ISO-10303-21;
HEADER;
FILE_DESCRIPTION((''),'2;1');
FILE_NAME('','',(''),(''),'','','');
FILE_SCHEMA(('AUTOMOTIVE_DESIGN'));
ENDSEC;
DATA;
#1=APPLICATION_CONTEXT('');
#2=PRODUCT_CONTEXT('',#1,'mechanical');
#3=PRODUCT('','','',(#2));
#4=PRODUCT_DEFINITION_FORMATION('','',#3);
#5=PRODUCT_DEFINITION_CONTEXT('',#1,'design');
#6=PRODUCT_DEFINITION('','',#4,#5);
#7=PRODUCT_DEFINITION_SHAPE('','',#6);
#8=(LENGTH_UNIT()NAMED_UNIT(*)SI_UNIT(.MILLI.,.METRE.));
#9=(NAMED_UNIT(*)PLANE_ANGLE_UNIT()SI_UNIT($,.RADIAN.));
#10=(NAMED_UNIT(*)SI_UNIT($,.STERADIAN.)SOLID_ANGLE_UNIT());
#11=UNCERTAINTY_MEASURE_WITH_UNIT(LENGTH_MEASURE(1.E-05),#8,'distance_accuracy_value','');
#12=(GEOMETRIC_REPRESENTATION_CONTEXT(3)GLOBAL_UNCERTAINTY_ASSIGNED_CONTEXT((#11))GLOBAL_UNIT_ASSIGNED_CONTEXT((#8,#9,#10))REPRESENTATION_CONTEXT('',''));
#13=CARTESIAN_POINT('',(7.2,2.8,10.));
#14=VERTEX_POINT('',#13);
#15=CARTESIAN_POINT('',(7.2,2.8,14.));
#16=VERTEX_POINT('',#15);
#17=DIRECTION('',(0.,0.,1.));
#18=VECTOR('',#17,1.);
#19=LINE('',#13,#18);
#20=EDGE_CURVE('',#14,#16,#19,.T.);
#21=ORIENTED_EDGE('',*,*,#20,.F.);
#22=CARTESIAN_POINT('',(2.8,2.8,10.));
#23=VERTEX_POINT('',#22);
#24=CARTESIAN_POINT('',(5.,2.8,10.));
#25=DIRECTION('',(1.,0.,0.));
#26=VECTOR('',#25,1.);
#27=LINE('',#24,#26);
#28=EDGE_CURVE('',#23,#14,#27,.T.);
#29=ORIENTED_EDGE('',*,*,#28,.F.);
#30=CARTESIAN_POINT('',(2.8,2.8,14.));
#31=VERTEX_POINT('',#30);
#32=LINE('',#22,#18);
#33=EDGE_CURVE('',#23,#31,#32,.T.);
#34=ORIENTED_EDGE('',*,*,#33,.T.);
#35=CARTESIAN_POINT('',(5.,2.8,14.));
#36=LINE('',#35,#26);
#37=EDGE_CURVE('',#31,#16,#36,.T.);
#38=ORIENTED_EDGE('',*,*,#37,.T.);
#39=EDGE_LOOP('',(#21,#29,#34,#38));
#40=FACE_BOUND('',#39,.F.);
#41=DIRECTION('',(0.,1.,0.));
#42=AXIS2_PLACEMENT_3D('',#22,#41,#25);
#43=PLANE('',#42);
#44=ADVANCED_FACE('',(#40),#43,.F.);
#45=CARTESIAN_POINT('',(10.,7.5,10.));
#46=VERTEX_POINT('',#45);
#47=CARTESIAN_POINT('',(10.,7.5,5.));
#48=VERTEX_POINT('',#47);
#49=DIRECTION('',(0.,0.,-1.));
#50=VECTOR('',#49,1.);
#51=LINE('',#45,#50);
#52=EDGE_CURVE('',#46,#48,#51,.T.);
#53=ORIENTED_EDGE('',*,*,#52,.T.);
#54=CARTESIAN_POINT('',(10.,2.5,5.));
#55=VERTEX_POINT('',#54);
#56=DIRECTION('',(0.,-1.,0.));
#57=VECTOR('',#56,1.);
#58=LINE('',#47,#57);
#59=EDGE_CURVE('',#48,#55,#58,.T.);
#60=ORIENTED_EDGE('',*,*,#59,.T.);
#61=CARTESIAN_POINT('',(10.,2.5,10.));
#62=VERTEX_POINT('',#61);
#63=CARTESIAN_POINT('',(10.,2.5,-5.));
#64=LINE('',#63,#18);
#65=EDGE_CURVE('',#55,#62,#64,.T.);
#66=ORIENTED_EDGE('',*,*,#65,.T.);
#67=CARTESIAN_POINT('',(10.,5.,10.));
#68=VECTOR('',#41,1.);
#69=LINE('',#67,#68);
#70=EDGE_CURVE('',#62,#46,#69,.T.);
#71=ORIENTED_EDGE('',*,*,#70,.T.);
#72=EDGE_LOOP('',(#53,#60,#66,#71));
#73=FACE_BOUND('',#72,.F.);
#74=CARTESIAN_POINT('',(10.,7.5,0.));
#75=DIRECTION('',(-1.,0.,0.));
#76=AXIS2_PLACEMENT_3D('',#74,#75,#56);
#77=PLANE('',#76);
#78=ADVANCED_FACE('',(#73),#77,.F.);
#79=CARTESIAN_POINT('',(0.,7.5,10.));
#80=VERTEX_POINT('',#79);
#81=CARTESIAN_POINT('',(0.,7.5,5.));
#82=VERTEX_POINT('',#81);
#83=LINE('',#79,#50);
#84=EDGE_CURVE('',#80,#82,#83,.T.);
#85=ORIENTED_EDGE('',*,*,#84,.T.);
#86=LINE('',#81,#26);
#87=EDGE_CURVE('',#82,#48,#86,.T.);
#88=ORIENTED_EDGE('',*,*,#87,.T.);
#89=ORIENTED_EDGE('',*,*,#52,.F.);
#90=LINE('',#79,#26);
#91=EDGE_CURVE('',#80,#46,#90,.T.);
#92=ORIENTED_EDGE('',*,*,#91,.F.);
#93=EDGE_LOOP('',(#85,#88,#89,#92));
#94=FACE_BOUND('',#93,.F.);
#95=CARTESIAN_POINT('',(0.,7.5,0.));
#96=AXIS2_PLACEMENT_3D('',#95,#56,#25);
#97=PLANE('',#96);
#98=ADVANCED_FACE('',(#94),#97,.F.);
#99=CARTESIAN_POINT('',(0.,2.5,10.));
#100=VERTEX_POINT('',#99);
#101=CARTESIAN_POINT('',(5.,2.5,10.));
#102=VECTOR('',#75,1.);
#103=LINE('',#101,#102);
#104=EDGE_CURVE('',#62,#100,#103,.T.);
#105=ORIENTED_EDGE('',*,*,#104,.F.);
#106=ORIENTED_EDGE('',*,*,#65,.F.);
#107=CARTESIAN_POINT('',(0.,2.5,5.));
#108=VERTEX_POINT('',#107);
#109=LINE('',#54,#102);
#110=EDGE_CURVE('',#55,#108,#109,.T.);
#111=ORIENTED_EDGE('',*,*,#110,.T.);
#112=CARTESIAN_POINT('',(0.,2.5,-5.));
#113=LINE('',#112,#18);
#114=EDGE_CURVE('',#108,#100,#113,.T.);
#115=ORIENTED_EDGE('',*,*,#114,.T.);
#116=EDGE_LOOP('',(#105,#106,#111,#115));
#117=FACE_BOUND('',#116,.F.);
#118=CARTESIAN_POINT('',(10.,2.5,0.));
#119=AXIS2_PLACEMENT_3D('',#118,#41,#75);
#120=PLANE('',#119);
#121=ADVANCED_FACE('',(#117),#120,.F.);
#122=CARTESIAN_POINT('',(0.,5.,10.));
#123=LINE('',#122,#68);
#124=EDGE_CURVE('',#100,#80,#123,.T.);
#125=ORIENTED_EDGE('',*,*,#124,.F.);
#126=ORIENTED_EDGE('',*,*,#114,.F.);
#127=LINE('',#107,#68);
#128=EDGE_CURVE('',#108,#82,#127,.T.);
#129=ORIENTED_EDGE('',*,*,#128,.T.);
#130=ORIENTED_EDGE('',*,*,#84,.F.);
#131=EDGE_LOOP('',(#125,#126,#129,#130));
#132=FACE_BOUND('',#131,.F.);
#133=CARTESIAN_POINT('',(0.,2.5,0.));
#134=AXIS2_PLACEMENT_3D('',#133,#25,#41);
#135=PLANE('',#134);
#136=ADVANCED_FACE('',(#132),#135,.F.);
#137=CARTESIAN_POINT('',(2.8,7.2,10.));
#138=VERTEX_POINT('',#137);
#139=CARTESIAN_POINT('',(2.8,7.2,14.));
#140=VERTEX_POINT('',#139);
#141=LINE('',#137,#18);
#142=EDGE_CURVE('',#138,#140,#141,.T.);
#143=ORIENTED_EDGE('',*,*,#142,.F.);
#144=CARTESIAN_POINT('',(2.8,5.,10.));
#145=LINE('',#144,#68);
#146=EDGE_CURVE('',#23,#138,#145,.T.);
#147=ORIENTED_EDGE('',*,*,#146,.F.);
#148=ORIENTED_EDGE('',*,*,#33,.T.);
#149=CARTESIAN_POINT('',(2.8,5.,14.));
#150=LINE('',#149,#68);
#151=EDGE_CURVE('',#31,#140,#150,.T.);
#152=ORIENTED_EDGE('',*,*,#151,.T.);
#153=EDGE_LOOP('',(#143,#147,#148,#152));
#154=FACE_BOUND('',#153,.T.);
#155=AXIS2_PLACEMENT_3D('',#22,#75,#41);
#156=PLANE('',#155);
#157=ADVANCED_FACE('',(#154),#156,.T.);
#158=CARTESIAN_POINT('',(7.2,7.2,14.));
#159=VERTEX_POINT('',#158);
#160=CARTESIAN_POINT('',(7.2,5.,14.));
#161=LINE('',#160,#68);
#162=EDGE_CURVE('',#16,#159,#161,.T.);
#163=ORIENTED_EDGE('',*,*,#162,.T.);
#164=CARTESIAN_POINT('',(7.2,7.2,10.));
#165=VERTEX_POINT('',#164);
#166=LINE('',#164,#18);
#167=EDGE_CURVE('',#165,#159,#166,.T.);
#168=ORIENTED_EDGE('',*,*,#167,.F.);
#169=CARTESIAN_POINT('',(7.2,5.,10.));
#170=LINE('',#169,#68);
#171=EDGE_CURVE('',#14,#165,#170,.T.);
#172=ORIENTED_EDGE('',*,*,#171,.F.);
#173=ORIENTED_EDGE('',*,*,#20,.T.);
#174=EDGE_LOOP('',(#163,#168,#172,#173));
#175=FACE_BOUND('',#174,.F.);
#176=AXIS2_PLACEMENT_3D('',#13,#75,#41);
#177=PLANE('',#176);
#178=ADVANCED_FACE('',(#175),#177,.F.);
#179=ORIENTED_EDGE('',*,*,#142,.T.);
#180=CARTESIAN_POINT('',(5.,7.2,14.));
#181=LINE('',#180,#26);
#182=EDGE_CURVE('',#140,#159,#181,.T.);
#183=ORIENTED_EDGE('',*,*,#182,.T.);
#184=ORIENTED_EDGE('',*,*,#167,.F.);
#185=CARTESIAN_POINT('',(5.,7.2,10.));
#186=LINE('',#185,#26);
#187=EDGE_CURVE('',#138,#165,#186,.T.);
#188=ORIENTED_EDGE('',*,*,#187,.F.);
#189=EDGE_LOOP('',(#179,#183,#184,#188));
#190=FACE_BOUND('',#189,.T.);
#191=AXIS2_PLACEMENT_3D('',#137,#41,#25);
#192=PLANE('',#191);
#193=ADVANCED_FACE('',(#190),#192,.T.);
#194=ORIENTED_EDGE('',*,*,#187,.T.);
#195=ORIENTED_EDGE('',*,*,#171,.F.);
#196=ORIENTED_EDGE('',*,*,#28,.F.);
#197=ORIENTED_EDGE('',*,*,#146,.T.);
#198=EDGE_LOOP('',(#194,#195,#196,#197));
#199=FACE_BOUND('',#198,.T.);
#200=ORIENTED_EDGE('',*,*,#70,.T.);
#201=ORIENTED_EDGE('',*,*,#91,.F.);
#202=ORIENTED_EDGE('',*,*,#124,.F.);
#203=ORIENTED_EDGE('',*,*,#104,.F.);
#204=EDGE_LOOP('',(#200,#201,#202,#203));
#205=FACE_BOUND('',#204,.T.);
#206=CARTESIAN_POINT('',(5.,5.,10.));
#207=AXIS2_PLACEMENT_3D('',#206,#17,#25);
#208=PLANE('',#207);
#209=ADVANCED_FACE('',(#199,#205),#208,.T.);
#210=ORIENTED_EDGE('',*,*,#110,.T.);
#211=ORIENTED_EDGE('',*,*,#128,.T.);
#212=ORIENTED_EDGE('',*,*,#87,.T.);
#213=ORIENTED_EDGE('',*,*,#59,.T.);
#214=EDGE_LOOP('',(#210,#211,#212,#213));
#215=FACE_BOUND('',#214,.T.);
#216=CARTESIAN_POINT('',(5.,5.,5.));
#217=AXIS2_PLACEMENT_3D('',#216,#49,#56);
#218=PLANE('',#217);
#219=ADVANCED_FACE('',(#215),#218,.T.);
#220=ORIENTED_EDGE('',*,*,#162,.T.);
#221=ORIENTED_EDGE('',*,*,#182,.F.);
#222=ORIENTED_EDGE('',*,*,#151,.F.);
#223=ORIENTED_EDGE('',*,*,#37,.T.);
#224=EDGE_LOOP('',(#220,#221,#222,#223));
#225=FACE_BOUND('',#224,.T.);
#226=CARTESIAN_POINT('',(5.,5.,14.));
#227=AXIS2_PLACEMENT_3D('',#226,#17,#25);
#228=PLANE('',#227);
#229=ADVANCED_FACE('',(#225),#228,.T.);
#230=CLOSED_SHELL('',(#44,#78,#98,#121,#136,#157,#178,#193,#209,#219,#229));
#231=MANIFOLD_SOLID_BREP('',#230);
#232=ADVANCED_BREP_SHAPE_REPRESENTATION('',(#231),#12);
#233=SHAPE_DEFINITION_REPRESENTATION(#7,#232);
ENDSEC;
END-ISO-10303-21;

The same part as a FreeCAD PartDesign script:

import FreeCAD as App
import Part
import Sketcher
from FreeCAD import Vector


def add_polygon(sketch, points):
    """Adds a closed chain of lines whose ends are joined by coincident constraints."""
    first, n = sketch.GeometryCount, len(points)
    for a, b in zip(points, points[1:] + points[:1]):
        sketch.addGeometry(Part.LineSegment(App.Vector(*a, 0), App.Vector(*b, 0)), False)
    for i in range(n):
        sketch.addConstraint(Sketcher.Constraint("Coincident", first + i, 2, first + (i + 1) % n, 1))

doc = App.newDocument("Part")
params = doc.addObject("Spreadsheet::Sheet", "Params")
for row, (alias, value) in enumerate([
    ("sketch1_width", "10 mm"),
    ("pad1_length", "10 mm"),
    ("sketch2_width", "4.4 mm"),
    ("pad2_length", "4 mm"),
    ("sketch3_width", "10 mm"),
    ("pocket1_length", "2.5 mm"),
    ("sketch4_width", "10 mm"),
    ("pocket2_length", "2.5 mm"),
    ("sketch5_width", "5 mm"),
    ("sketch5_height", "10 mm"),
    ("pad3_length", "10 mm"),
    ("sketch6_width", "4.4 mm"),
    ("pad4_length", "4 mm"),
    ("sketch7_width", "4.4 mm"),
    ("pocket3_length", "5 mm"),
    ("sketch8_width", "5 mm"),
    ("sketch8_height", "10 mm"),
    ("pocket4_length", "7.5 mm"),
    ("sketch9_width", "5 mm"),
    ("sketch9_height", "10 mm"),
    ("pocket5_length", "2.5 mm"),
    ("sketch10_width", "10 mm"),
    ("sketch10_height", "5 mm"),
    ("pad5_length", "5 mm"),
    ("sketch11_width", "10 mm"),
    ("sketch11_height", "5 mm"),
    ("pocket6_length", "10 mm"),
], start=1):
    params.set(f"A{row}", alias)
    params.set(f"B{row}", "=" + value)
    params.setAlias(f"B{row}", alias)

body = doc.addObject("PartDesign::Body", "Body")

sketch1 = doc.addObject("Sketcher::SketchObject", "Sketch")
body.addObject(sketch1)
sketch1.AttachmentSupport = (doc.XY_Plane, [""])
sketch1.MapMode = "FlatFace"
add_polygon(sketch1, [(0, 10), (0, 0), (10, 0), (10, 10)])
sketch1.addConstraint(Sketcher.Constraint("Vertical", 0))
sketch1.addConstraint(Sketcher.Constraint("Horizontal", 1))
sketch1.addConstraint(Sketcher.Constraint("Vertical", 2))
sketch1.addConstraint(Sketcher.Constraint("Horizontal", 3))
sketch1.addConstraint(Sketcher.Constraint("Coincident", 0, 2, -1, 1))
sketch1.addConstraint(Sketcher.Constraint("Equal", 3, 0))
sketch1.addConstraint(Sketcher.Constraint("DistanceX", 1, 1, 1, 2, 10.0))
sketch1.setExpression("Constraints[10]", "Params.sketch1_width")
pad1 = doc.addObject("PartDesign::Pad", "Pad")
body.addObject(pad1)
pad1.Profile = sketch1
pad1.setExpression("Length", "Params.pad1_length")

sketch2 = doc.addObject("Sketcher::SketchObject", "Sketch001")
body.addObject(sketch2)
sketch2.AttachmentSupport = (doc.XY_Plane, [""])
sketch2.MapMode = "FlatFace"
sketch2.AttachmentOffset = App.Placement(Vector(0, 0, 10), App.Rotation())
add_polygon(sketch2, [(2.8, 7.2), (2.8, 2.8), (7.2, 2.8), (7.2, 7.2)])
sketch2.addConstraint(Sketcher.Constraint("Vertical", 0))
sketch2.addConstraint(Sketcher.Constraint("Horizontal", 1))
sketch2.addConstraint(Sketcher.Constraint("Vertical", 2))
sketch2.addConstraint(Sketcher.Constraint("Horizontal", 3))
sketch2.addConstraint(Sketcher.Constraint("Equal", 3, 0))
sketch2.addConstraint(Sketcher.Constraint("DistanceX", 1, 1, 1, 2, 4.4))
sketch2.addConstraint(Sketcher.Constraint("DistanceX", -1, 1, 0, 2, 2.8))
sketch2.addConstraint(Sketcher.Constraint("DistanceY", -1, 1, 0, 2, 2.8))
sketch2.setExpression("Constraints[9]", "Params.sketch2_width")
pad2 = doc.addObject("PartDesign::Pad", "Pad001")
body.addObject(pad2)
pad2.Profile = sketch2
pad2.setExpression("Length", "Params.pad2_length")

sketch3 = doc.addObject("Sketcher::SketchObject", "Sketch002")
body.addObject(sketch3)
sketch3.AttachmentSupport = (doc.XZ_Plane, [""])
sketch3.MapMode = "FlatFace"
sketch3.AttachmentOffset = App.Placement(Vector(0, 0, -10), App.Rotation())
add_polygon(sketch3, [(0, 0), (0, 10), (10, 10), (10, 0)])
sketch3.addConstraint(Sketcher.Constraint("Vertical", 0))
sketch3.addConstraint(Sketcher.Constraint("Horizontal", 1))
sketch3.addConstraint(Sketcher.Constraint("Vertical", 2))
sketch3.addConstraint(Sketcher.Constraint("Horizontal", 3))
sketch3.addConstraint(Sketcher.Constraint("Coincident", 3, 2, -1, 1))
sketch3.addConstraint(Sketcher.Constraint("Equal", 3, 0))
sketch3.addConstraint(Sketcher.Constraint("DistanceX", 1, 1, 1, 2, 10.0))
sketch3.setExpression("Constraints[10]", "Params.sketch3_width")
pocket1 = doc.addObject("PartDesign::Pocket", "Pocket")
body.addObject(pocket1)
pocket1.Profile = sketch3
pocket1.setExpression("Length", "Params.pocket1_length")
pocket1.Reversed = True

sketch4 = doc.addObject("Sketcher::SketchObject", "Sketch003")
body.addObject(sketch4)
sketch4.AttachmentSupport = (doc.XZ_Plane, [""])
sketch4.MapMode = "FlatFace"
add_polygon(sketch4, [(10, 0), (10, 10), (0, 10), (0, 0)])
sketch4.addConstraint(Sketcher.Constraint("Vertical", 0))
sketch4.addConstraint(Sketcher.Constraint("Horizontal", 1))
sketch4.addConstraint(Sketcher.Constraint("Vertical", 2))
sketch4.addConstraint(Sketcher.Constraint("Horizontal", 3))
sketch4.addConstraint(Sketcher.Constraint("Coincident", 2, 2, -1, 1))
sketch4.addConstraint(Sketcher.Constraint("Equal", 3, 0))
sketch4.addConstraint(Sketcher.Constraint("DistanceX", 1, 2, 1, 1, 10.0))
sketch4.setExpression("Constraints[10]", "Params.sketch4_width")
pocket2 = doc.addObject("PartDesign::Pocket", "Pocket001")
body.addObject(pocket2)
pocket2.Profile = sketch4
pocket2.setExpression("Length", "Params.pocket2_length")

sketch5 = doc.addObject("Sketcher::SketchObject", "Sketch004")
body.addObject(sketch5)
sketch5.AttachmentSupport = (doc.XZ_Plane, [""])
sketch5.MapMode = "FlatFace"
sketch5.AttachmentOffset = App.Placement(Vector(0, 0, -7.5), App.Rotation())
add_polygon(sketch5, [(7.5, 10), (7.5, 0), (2.5, 0), (2.5, 10)])
sketch5.addConstraint(Sketcher.Constraint("Vertical", 0))
sketch5.addConstraint(Sketcher.Constraint("Horizontal", 1))
sketch5.addConstraint(Sketcher.Constraint("Vertical", 2))
sketch5.addConstraint(Sketcher.Constraint("Horizontal", 3))
sketch5.addConstraint(Sketcher.Constraint("PointOnObject", 0, 2, -1))
sketch5.addConstraint(Sketcher.Constraint("DistanceX", 1, 2, 1, 1, 5.0))
sketch5.addConstraint(Sketcher.Constraint("DistanceY", 0, 2, 0, 1, 10.0))
sketch5.addConstraint(Sketcher.Constraint("DistanceX", -1, 1, 0, 2, 7.5))
sketch5.setExpression("Constraints[9]", "Params.sketch5_width")
sketch5.setExpression("Constraints[10]", "Params.sketch5_height")
pad3 = doc.addObject("PartDesign::Pad", "Pad002")
body.addObject(pad3)
pad3.Profile = sketch5
pad3.setExpression("Length", "Params.pad3_length")
pad3.Reversed = True

sketch6 = doc.addObject("Sketcher::SketchObject", "Sketch005")
body.addObject(sketch6)
sketch6.AttachmentSupport = (doc.XY_Plane, [""])
sketch6.MapMode = "FlatFace"
sketch6.AttachmentOffset = App.Placement(Vector(0, 0, 10), App.Rotation())
add_polygon(sketch6, [(2.8, 14.7), (2.8, 10.3), (7.2, 10.3), (7.2, 14.7)])
sketch6.addConstraint(Sketcher.Constraint("Vertical", 0))
sketch6.addConstraint(Sketcher.Constraint("Horizontal", 1))
sketch6.addConstraint(Sketcher.Constraint("Vertical", 2))
sketch6.addConstraint(Sketcher.Constraint("Horizontal", 3))
sketch6.addConstraint(Sketcher.Constraint("Equal", 3, 0))
sketch6.addConstraint(Sketcher.Constraint("DistanceX", 1, 1, 1, 2, 4.4))
sketch6.addConstraint(Sketcher.Constraint("DistanceX", -1, 1, 0, 2, 2.8))
sketch6.addConstraint(Sketcher.Constraint("DistanceY", -1, 1, 0, 2, 10.3))
sketch6.setExpression("Constraints[9]", "Params.sketch6_width")
pad4 = doc.addObject("PartDesign::Pad", "Pad003")
body.addObject(pad4)
pad4.Profile = sketch6
pad4.setExpression("Length", "Params.pad4_length")

sketch7 = doc.addObject("Sketcher::SketchObject", "Sketch006")
body.addObject(sketch7)
sketch7.AttachmentSupport = (doc.XY_Plane, [""])
sketch7.MapMode = "FlatFace"
sketch7.AttachmentOffset = App.Placement(Vector(0, 0, 14), App.Rotation())
add_polygon(sketch7, [(2.8, 10.3), (7.2, 10.3), (7.2, 14.7), (2.8, 14.7)])
sketch7.addConstraint(Sketcher.Constraint("Horizontal", 0))
sketch7.addConstraint(Sketcher.Constraint("Vertical", 1))
sketch7.addConstraint(Sketcher.Constraint("Horizontal", 2))
sketch7.addConstraint(Sketcher.Constraint("Vertical", 3))
sketch7.addConstraint(Sketcher.Constraint("Equal", 2, 1))
sketch7.addConstraint(Sketcher.Constraint("DistanceX", 0, 1, 0, 2, 4.4))
sketch7.addConstraint(Sketcher.Constraint("DistanceX", -1, 1, 0, 2, 7.2))
sketch7.addConstraint(Sketcher.Constraint("DistanceY", -1, 1, 0, 2, 10.3))
sketch7.setExpression("Constraints[9]", "Params.sketch7_width")
pocket3 = doc.addObject("PartDesign::Pocket", "Pocket002")
body.addObject(pocket3)
pocket3.Profile = sketch7
pocket3.setExpression("Length", "Params.pocket3_length")

sketch8 = doc.addObject("Sketcher::SketchObject", "Sketch007")
body.addObject(sketch8)
sketch8.AttachmentSupport = (doc.XZ_Plane, [""])
sketch8.MapMode = "FlatFace"
sketch8.AttachmentOffset = App.Placement(Vector(0, 0, -17.5), App.Rotation())
add_polygon(sketch8, [(2.5, 0), (2.5, 10), (7.5, 10), (7.5, 0)])
sketch8.addConstraint(Sketcher.Constraint("Vertical", 0))
sketch8.addConstraint(Sketcher.Constraint("Horizontal", 1))
sketch8.addConstraint(Sketcher.Constraint("Vertical", 2))
sketch8.addConstraint(Sketcher.Constraint("Horizontal", 3))
sketch8.addConstraint(Sketcher.Constraint("PointOnObject", 2, 2, -1))
sketch8.addConstraint(Sketcher.Constraint("DistanceX", 1, 1, 1, 2, 5.0))
sketch8.addConstraint(Sketcher.Constraint("DistanceY", 0, 1, 0, 2, 10.0))
sketch8.addConstraint(Sketcher.Constraint("DistanceX", -1, 1, 0, 2, 2.5))
sketch8.setExpression("Constraints[9]", "Params.sketch8_width")
sketch8.setExpression("Constraints[10]", "Params.sketch8_height")
pocket4 = doc.addObject("PartDesign::Pocket", "Pocket003")
body.addObject(pocket4)
pocket4.Profile = sketch8
pocket4.setExpression("Length", "Params.pocket4_length")
pocket4.Reversed = True

sketch9 = doc.addObject("Sketcher::SketchObject", "Sketch008")
body.addObject(sketch9)
sketch9.AttachmentSupport = (doc.XZ_Plane, [""])
sketch9.MapMode = "FlatFace"
sketch9.AttachmentOffset = App.Placement(Vector(0, 0, -10), App.Rotation())
add_polygon(sketch9, [(2.5, 0), (2.5, 10), (7.5, 10), (7.5, 0)])
sketch9.addConstraint(Sketcher.Constraint("Vertical", 0))
sketch9.addConstraint(Sketcher.Constraint("Horizontal", 1))
sketch9.addConstraint(Sketcher.Constraint("Vertical", 2))
sketch9.addConstraint(Sketcher.Constraint("Horizontal", 3))
sketch9.addConstraint(Sketcher.Constraint("PointOnObject", 2, 2, -1))
sketch9.addConstraint(Sketcher.Constraint("DistanceX", 1, 1, 1, 2, 5.0))
sketch9.addConstraint(Sketcher.Constraint("DistanceY", 0, 1, 0, 2, 10.0))
sketch9.addConstraint(Sketcher.Constraint("DistanceX", -1, 1, 0, 2, 2.5))
sketch9.setExpression("Constraints[9]", "Params.sketch9_width")
sketch9.setExpression("Constraints[10]", "Params.sketch9_height")
pocket5 = doc.addObject("PartDesign::Pocket", "Pocket004")
body.addObject(pocket5)
pocket5.Profile = sketch9
pocket5.setExpression("Length", "Params.pocket5_length")
pocket5.Reversed = True

sketch10 = doc.addObject("Sketcher::SketchObject", "Sketch009")
body.addObject(sketch10)
sketch10.AttachmentSupport = (doc.XY_Plane, [""])
sketch10.MapMode = "FlatFace"
add_polygon(sketch10, [(0, 2.5), (0, 7.5), (10, 7.5), (10, 2.5)])
sketch10.addConstraint(Sketcher.Constraint("Vertical", 0))
sketch10.addConstraint(Sketcher.Constraint("Horizontal", 1))
sketch10.addConstraint(Sketcher.Constraint("Vertical", 2))
sketch10.addConstraint(Sketcher.Constraint("Horizontal", 3))
sketch10.addConstraint(Sketcher.Constraint("PointOnObject", 0, 2, -2))
sketch10.addConstraint(Sketcher.Constraint("DistanceX", 1, 1, 1, 2, 10.0))
sketch10.addConstraint(Sketcher.Constraint("DistanceY", 0, 1, 0, 2, 5.0))
sketch10.addConstraint(Sketcher.Constraint("DistanceY", -1, 1, 0, 2, 7.5))
sketch10.setExpression("Constraints[9]", "Params.sketch10_width")
sketch10.setExpression("Constraints[10]", "Params.sketch10_height")
pad5 = doc.addObject("PartDesign::Pad", "Pad004")
body.addObject(pad5)
pad5.Profile = sketch10
pad5.setExpression("Length", "Params.pad5_length")
pad5.Reversed = True

sketch11 = doc.addObject("Sketcher::SketchObject", "Sketch010")
body.addObject(sketch11)
sketch11.AttachmentSupport = (doc.XY_Plane, [""])
sketch11.MapMode = "FlatFace"
sketch11.AttachmentOffset = App.Placement(Vector(0, 0, -5), App.Rotation())
add_polygon(sketch11, [(0, 2.5), (0, 7.5), (10, 7.5), (10, 2.5)])
sketch11.addConstraint(Sketcher.Constraint("Vertical", 0))
sketch11.addConstraint(Sketcher.Constraint("Horizontal", 1))
sketch11.addConstraint(Sketcher.Constraint("Vertical", 2))
sketch11.addConstraint(Sketcher.Constraint("Horizontal", 3))
sketch11.addConstraint(Sketcher.Constraint("PointOnObject", 0, 2, -2))
sketch11.addConstraint(Sketcher.Constraint("DistanceX", 1, 1, 1, 2, 10.0))
sketch11.addConstraint(Sketcher.Constraint("DistanceY", 0, 1, 0, 2, 5.0))
sketch11.addConstraint(Sketcher.Constraint("DistanceY", -1, 1, 0, 2, 7.5))
sketch11.setExpression("Constraints[9]", "Params.sketch11_width")
sketch11.setExpression("Constraints[10]", "Params.sketch11_height")
pocket6 = doc.addObject("PartDesign::Pocket", "Pocket005")
body.addObject(pocket6)
pocket6.Profile = sketch11
pocket6.setExpression("Length", "Params.pocket6_length")
pocket6.Reversed = True

doc.recompute()
